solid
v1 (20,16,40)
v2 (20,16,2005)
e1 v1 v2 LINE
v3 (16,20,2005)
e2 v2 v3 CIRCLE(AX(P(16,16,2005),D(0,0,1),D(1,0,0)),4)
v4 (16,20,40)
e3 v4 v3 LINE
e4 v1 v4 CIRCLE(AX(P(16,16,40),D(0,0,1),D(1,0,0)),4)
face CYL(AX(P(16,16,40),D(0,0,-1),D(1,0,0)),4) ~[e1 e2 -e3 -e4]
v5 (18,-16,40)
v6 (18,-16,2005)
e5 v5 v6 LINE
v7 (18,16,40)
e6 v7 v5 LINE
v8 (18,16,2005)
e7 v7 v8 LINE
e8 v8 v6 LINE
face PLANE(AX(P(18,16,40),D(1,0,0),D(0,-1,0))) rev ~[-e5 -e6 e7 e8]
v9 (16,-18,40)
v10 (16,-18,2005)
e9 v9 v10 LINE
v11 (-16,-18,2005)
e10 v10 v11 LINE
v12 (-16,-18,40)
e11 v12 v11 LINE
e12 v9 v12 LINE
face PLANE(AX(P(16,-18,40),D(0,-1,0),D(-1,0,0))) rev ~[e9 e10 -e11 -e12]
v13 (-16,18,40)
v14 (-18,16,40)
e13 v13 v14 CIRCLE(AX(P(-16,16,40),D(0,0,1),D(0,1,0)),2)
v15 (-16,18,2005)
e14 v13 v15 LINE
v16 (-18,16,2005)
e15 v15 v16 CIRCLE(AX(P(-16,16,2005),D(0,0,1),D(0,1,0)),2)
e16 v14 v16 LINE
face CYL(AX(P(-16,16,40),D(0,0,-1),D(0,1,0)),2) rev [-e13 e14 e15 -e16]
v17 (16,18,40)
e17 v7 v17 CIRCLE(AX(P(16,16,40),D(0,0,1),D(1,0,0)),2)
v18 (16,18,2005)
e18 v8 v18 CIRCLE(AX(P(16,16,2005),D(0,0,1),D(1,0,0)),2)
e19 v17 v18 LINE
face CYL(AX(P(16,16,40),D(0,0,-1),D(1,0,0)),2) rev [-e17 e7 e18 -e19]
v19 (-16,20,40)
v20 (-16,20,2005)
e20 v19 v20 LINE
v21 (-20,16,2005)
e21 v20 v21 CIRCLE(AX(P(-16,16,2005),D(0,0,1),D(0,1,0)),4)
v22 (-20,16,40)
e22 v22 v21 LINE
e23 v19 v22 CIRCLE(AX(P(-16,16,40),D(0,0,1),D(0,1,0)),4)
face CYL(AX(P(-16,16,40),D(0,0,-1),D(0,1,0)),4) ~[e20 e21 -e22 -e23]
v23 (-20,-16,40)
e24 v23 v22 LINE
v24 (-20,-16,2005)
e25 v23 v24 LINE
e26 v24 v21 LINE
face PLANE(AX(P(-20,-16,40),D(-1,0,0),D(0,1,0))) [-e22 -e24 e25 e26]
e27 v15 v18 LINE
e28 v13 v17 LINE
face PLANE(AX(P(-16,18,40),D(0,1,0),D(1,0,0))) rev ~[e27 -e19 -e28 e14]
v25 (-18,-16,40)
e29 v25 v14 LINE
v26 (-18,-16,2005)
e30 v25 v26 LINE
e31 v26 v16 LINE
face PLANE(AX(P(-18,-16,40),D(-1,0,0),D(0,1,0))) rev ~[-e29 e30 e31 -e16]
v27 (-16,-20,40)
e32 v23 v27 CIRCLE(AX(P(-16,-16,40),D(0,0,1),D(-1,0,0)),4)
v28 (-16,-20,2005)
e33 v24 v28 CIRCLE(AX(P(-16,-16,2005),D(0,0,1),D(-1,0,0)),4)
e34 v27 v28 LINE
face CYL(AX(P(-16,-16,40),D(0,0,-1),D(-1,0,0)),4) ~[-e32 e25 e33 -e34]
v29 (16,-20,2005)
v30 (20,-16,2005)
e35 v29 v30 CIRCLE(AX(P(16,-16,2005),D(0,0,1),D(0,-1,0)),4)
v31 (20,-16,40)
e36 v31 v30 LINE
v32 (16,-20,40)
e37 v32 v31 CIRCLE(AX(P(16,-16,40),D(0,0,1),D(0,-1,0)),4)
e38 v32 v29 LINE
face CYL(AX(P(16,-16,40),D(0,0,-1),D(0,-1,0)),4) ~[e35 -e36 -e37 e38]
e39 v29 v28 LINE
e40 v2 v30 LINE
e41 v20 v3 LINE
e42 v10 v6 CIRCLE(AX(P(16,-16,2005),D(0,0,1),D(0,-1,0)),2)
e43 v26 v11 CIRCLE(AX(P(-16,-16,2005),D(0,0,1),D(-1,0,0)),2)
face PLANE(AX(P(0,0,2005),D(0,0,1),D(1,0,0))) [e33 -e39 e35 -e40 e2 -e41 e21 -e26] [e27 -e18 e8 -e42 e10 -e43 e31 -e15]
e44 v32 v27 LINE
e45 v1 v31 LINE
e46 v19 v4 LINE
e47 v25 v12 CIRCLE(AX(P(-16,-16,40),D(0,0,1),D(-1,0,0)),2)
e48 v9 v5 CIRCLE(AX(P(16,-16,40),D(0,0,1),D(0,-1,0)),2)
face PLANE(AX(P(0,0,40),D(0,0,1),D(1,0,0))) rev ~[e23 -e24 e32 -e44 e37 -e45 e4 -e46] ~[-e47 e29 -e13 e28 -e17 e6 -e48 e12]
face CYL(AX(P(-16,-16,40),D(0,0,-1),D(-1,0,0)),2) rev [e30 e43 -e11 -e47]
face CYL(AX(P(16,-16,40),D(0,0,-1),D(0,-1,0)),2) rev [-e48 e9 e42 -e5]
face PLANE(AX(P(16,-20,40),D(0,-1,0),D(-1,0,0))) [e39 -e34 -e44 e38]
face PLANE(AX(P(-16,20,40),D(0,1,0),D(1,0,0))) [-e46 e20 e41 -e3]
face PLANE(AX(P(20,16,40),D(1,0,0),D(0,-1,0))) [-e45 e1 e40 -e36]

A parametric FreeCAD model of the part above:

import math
import FreeCAD as App
import Part
import Sketcher

doc = App.newDocument("Part")
params = doc.addObject("Spreadsheet::Sheet", "Params")
for row, (alias, value) in enumerate([
    ("sketch1_radius", "4 mm"),
    ("sketch1_radius2", "2 mm"),
    ("pad1_length", "1965 mm"),
], start=1):
    params.set(f"A{row}", alias)
    params.set(f"B{row}", "=" + value)
    params.setAlias(f"B{row}", alias)

body = doc.addObject("PartDesign::Body", "Body")

# Sketch on XY plane
sketch1 = body.newObject("Sketcher::SketchObject", "Sketch")
sketch1.AttachmentSupport = (doc.getObject("XY_Plane"), [""])
sketch1.MapMode = "FlatFace"
sketch1.AttachmentOffset = App.Placement(App.Vector(0, 0, 40), App.Rotation())
sketch1.addGeometry([
    Part.LineSegment(App.Vector(-20, 16, 0), App.Vector(-20, -16, 0)),  # 0
    Part.ArcOfCircle(Part.Circle(App.Vector(-16, -16, 0), App.Vector(0, 0, 1), 4), math.radians(180), math.radians(270)),  # 1
    Part.LineSegment(App.Vector(-16, -20, 0), App.Vector(16, -20, 0)),  # 2
    Part.ArcOfCircle(Part.Circle(App.Vector(16, -16, 0), App.Vector(0, 0, 1), 4), math.radians(-90), math.radians(0)),  # 3
    Part.LineSegment(App.Vector(20, -16, 0), App.Vector(20, 16, 0)),  # 4
    Part.ArcOfCircle(Part.Circle(App.Vector(16, 16, 0), App.Vector(0, 0, 1), 4), math.radians(0), math.radians(90)),  # 5
    Part.LineSegment(App.Vector(16, 20, 0), App.Vector(-16, 20, 0)),  # 6
    Part.ArcOfCircle(Part.Circle(App.Vector(-16, 16, 0), App.Vector(0, 0, 1), 4), math.radians(90), math.radians(180)),  # 7
    Part.ArcOfCircle(Part.Circle(App.Vector(-16, 16, 0), App.Vector(0, 0, 1), 2), math.radians(90), math.radians(180)),  # 8
    Part.LineSegment(App.Vector(-16, 18, 0), App.Vector(16, 18, 0)),  # 9
    Part.ArcOfCircle(Part.Circle(App.Vector(16, 16, 0), App.Vector(0, 0, 1), 2), math.radians(0), math.radians(90)),  # 10
    Part.LineSegment(App.Vector(18, 16, 0), App.Vector(18, -16, 0)),  # 11
    Part.ArcOfCircle(Part.Circle(App.Vector(16, -16, 0), App.Vector(0, 0, 1), 2), math.radians(-90), math.radians(0)),  # 12
    Part.LineSegment(App.Vector(16, -18, 0), App.Vector(-16, -18, 0)),  # 13
    Part.ArcOfCircle(Part.Circle(App.Vector(-16, -16, 0), App.Vector(0, 0, 1), 2), math.radians(180), math.radians(270)),  # 14
    Part.LineSegment(App.Vector(-18, -16, 0), App.Vector(-18, 16, 0)),  # 15
], False)
sketch1.addConstraint([
    Sketcher.Constraint("Tangent", 0, 2, 1, 1),
    Sketcher.Constraint("Tangent", 1, 2, 2, 1),
    Sketcher.Constraint("Tangent", 2, 2, 3, 1),
    Sketcher.Constraint("Tangent", 3, 2, 4, 1),
    Sketcher.Constraint("Tangent", 4, 2, 5, 1),
    Sketcher.Constraint("Tangent", 5, 2, 6, 1),
    Sketcher.Constraint("Tangent", 6, 2, 7, 1),
    Sketcher.Constraint("Tangent", 7, 2, 0, 1),
    Sketcher.Constraint("Tangent", 8, 1, 9, 1),
    Sketcher.Constraint("Tangent", 9, 2, 10, 2),
    Sketcher.Constraint("Tangent", 10, 1, 11, 1),
    Sketcher.Constraint("Tangent", 11, 2, 12, 2),
    Sketcher.Constraint("Tangent", 12, 1, 13, 1),
    Sketcher.Constraint("Tangent", 13, 2, 14, 2),
    Sketcher.Constraint("Tangent", 14, 1, 15, 1),
    Sketcher.Constraint("Tangent", 15, 2, 8, 2),
    Sketcher.Constraint("Vertical", 0),
    Sketcher.Constraint("Horizontal", 2),
    Sketcher.Constraint("Vertical", 4),
    Sketcher.Constraint("Horizontal", 6),
    Sketcher.Constraint("Horizontal", 9),
    Sketcher.Constraint("Vertical", 11),
    Sketcher.Constraint("Horizontal", 13),
    Sketcher.Constraint("Vertical", 15),
    Sketcher.Constraint("Coincident", 8, 3, 7, 3),
    Sketcher.Constraint("Coincident", 10, 3, 5, 3),
    Sketcher.Constraint("Coincident", 12, 3, 3, 3),
    Sketcher.Constraint("Equal", 1, 3),
    Sketcher.Constraint("Equal", 3, 5),
    Sketcher.Constraint("Equal", 5, 7),
    Sketcher.Constraint("Equal", 12, 14),
    Sketcher.Constraint("Symmetric", 1, 3, 5, 3, -1, 1),
    Sketcher.Constraint("Equal", 13, 0),
    Sketcher.Constraint("Radius", 1, 4.0),
    Sketcher.Constraint("Radius", 8, 2.0),
    Sketcher.Constraint("DistanceX", 0, 2, -1, 1, 20.0),
])
sketch1.setExpression("Constraints[33]", "Params.sketch1_radius")
sketch1.setExpression("Constraints[34]", "Params.sketch1_radius2")
pad1 = body.newObject("PartDesign::Pad", "Pad")
pad1.Profile = sketch1
pad1.setExpression("Length", "Params.pad1_length")

doc.recompute()
